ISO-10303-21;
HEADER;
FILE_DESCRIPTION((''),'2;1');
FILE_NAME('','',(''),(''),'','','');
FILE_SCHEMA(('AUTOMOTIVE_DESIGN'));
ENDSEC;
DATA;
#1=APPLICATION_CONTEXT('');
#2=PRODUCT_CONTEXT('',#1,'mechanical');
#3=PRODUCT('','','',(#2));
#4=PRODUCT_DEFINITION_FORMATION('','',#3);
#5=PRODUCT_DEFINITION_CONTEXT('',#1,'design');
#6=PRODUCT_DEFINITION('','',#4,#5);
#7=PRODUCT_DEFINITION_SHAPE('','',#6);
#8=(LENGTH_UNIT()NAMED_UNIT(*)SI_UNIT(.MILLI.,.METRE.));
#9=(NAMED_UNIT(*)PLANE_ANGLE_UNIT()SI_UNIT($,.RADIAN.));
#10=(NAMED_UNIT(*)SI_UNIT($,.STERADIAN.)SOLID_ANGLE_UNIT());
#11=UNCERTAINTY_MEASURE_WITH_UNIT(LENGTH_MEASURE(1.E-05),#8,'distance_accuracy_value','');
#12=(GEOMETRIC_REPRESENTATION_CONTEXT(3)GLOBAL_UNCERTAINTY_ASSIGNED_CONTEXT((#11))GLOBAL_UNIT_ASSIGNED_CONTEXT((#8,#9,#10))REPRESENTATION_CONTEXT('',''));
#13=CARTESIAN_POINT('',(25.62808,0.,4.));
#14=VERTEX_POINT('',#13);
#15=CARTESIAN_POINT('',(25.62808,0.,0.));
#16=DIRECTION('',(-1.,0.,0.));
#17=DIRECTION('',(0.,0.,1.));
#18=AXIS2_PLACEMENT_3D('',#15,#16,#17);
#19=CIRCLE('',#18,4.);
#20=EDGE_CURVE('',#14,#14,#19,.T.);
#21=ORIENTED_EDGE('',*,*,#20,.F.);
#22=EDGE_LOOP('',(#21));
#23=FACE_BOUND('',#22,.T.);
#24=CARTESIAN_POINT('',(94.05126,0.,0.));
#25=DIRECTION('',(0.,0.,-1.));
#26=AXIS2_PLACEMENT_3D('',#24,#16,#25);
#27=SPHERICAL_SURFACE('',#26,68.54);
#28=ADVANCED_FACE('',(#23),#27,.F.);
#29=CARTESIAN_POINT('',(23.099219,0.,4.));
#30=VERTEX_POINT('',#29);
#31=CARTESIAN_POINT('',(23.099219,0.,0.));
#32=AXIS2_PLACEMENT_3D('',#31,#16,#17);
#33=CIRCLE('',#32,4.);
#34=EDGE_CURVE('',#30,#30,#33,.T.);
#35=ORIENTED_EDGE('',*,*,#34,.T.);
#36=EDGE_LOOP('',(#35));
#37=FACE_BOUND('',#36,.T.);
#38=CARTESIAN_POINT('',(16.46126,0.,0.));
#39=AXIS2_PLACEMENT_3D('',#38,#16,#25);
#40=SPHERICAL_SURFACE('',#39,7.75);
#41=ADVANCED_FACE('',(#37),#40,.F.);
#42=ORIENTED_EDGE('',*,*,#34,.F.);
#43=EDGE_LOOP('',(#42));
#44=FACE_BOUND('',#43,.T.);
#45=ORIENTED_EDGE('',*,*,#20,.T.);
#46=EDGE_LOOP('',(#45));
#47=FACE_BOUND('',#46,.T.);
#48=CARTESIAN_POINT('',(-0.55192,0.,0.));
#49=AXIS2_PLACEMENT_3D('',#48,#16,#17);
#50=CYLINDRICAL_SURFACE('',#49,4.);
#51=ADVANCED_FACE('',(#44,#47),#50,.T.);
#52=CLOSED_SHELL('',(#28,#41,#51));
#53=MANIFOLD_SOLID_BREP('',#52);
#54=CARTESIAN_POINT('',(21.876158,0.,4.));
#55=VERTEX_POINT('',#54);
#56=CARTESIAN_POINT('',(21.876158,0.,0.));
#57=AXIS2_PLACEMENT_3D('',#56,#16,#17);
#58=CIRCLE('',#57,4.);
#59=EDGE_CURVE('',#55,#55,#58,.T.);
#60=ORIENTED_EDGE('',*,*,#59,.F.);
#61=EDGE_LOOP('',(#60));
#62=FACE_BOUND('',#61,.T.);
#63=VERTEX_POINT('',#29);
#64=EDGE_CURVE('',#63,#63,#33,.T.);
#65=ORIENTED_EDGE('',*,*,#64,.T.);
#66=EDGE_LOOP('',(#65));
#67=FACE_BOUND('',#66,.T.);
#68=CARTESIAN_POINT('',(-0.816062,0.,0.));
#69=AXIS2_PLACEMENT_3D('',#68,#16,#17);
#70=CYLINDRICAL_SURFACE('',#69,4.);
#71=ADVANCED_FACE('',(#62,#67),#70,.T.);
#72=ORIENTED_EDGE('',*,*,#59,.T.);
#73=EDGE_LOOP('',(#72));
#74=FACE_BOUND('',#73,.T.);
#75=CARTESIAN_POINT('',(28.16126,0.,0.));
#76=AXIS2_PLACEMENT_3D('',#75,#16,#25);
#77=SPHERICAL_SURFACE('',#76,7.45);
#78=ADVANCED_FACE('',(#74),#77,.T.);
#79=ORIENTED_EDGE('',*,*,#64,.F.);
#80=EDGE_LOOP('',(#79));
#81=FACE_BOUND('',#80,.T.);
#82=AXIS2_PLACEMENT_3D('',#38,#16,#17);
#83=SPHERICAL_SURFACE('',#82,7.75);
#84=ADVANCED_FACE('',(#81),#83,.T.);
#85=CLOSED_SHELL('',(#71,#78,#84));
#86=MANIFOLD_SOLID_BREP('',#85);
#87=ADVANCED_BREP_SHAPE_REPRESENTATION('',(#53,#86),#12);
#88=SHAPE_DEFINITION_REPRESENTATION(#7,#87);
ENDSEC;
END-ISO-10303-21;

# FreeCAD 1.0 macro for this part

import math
import FreeCAD as App
import Part
import Sketcher

V = App.Vector

doc = App.newDocument("Part")
body = doc.addObject("PartDesign::Body", "Body")

# Sketch on XZ plane
sketch1 = doc.addObject("Sketcher::SketchObject", "Sketch")
body.addObject(sketch1)
sketch1.AttachmentSupport = (doc.XZ_Plane, [""])
sketch1.MapMode = "FlatFace"
sketch1.addGeometry([
    Part.ArcOfCircle(Part.Circle(V(28.16126, 0, 0), V(0, 0, 1), 7.45), math.radians(-180), math.radians(-147.526277)),
    Part.LineSegment(V(20.71126, 0, 0), V(24.21126, 0, 0)),
    Part.ArcOfCircle(Part.Circle(V(16.46126, 0, 0), V(0, 0, 1), 7.75), math.radians(-31.072951), math.radians(0)),
    Part.LineSegment(V(23.099219, -4, 0), V(21.876158, -4, 0)),
], False)
sketch1.addConstraint([
    Sketcher.Constraint("Coincident", 0, 1, 1, 1),
    Sketcher.Constraint("Coincident", 1, 2, 2, 2),
    Sketcher.Constraint("Coincident", 2, 1, 3, 1),
    Sketcher.Constraint("Coincident", 3, 2, 0, 2),
    Sketcher.Constraint("Horizontal", 1),
    Sketcher.Constraint("Horizontal", 3),
    Sketcher.Constraint("PointOnObject", 0, 3, -1),
    Sketcher.Constraint("PointOnObject", 2, 3, -1),
    Sketcher.Constraint("PointOnObject", 0, 1, -1),
    Sketcher.Constraint("Radius", 0, 7.45),
    Sketcher.Constraint("Radius", 2, 7.75),
    Sketcher.Constraint("DistanceX", 1, 1, 1, 2, 3.5),
    Sketcher.Constraint("DistanceY", 2, 1, -1, 1, 4.0),
    Sketcher.Constraint("DistanceX", -1, 1, 0, 3, 28.16126),
])
revolution = doc.addObject("PartDesign::Revolution", "Revolution")
body.addObject(revolution)
revolution.Profile = sketch1
revolution.ReferenceAxis = (sketch1, ["H_Axis"])
revolution.Angle = 360
body2 = doc.addObject("PartDesign::Body", "Body001")

# Sketch on XZ plane
sketch2 = doc.addObject("Sketcher::SketchObject", "Sketch001")
body2.addObject(sketch2)
sketch2.AttachmentSupport = (doc.getObject("XZ_Plane001"), [""])
sketch2.MapMode = "FlatFace"
sketch2.addGeometry([
    Part.LineSegment(V(25.62808, -4, 0), V(23.099219, -4, 0)),
    Part.ArcOfCircle(Part.Circle(V(16.46126, 0, 0), V(0, 0, 1), 7.75), math.radians(-31.072951), math.radians(0)),
    Part.LineSegment(V(24.21126, 0, 0), V(25.51126, 0, 0)),
    Part.ArcOfCircle(Part.Circle(V(94.05126, 0, 0), V(0, 0, 1), 68.54), math.radians(180), math.radians(183.345687)),
], False)
sketch2.addConstraint([
    Sketcher.Constraint("Coincident", 0, 2, 1, 1),
    Sketcher.Constraint("Coincident", 1, 2, 2, 1),
    Sketcher.Constraint("Coincident", 2, 2, 3, 1),
    Sketcher.Constraint("Coincident", 3, 2, 0, 1),
    Sketcher.Constraint("Horizontal", 0),
    Sketcher.Constraint("Horizontal", 2),
    Sketcher.Constraint("PointOnObject", 1, 3, -1),
    Sketcher.Constraint("PointOnObject", 3, 3, -1),
    Sketcher.Constraint("PointOnObject", 1, 2, -1),
    Sketcher.Constraint("Radius", 1, 7.75),
    Sketcher.Constraint("Radius", 3, 68.54),
    Sketcher.Constraint("DistanceX", 2, 1, 2, 2, 1.3),
    Sketcher.Constraint("DistanceY", 0, 2, -1, 1, 4.0),
    Sketcher.Constraint("DistanceX", -1, 1, 1, 3, 16.46126),
])
revolution2 = doc.addObject("PartDesign::Revolution", "Revolution001")
body2.addObject(revolution2)
revolution2.Profile = sketch2
revolution2.ReferenceAxis = (sketch2, ["H_Axis"])
revolution2.Angle = 360

doc.recompute()
